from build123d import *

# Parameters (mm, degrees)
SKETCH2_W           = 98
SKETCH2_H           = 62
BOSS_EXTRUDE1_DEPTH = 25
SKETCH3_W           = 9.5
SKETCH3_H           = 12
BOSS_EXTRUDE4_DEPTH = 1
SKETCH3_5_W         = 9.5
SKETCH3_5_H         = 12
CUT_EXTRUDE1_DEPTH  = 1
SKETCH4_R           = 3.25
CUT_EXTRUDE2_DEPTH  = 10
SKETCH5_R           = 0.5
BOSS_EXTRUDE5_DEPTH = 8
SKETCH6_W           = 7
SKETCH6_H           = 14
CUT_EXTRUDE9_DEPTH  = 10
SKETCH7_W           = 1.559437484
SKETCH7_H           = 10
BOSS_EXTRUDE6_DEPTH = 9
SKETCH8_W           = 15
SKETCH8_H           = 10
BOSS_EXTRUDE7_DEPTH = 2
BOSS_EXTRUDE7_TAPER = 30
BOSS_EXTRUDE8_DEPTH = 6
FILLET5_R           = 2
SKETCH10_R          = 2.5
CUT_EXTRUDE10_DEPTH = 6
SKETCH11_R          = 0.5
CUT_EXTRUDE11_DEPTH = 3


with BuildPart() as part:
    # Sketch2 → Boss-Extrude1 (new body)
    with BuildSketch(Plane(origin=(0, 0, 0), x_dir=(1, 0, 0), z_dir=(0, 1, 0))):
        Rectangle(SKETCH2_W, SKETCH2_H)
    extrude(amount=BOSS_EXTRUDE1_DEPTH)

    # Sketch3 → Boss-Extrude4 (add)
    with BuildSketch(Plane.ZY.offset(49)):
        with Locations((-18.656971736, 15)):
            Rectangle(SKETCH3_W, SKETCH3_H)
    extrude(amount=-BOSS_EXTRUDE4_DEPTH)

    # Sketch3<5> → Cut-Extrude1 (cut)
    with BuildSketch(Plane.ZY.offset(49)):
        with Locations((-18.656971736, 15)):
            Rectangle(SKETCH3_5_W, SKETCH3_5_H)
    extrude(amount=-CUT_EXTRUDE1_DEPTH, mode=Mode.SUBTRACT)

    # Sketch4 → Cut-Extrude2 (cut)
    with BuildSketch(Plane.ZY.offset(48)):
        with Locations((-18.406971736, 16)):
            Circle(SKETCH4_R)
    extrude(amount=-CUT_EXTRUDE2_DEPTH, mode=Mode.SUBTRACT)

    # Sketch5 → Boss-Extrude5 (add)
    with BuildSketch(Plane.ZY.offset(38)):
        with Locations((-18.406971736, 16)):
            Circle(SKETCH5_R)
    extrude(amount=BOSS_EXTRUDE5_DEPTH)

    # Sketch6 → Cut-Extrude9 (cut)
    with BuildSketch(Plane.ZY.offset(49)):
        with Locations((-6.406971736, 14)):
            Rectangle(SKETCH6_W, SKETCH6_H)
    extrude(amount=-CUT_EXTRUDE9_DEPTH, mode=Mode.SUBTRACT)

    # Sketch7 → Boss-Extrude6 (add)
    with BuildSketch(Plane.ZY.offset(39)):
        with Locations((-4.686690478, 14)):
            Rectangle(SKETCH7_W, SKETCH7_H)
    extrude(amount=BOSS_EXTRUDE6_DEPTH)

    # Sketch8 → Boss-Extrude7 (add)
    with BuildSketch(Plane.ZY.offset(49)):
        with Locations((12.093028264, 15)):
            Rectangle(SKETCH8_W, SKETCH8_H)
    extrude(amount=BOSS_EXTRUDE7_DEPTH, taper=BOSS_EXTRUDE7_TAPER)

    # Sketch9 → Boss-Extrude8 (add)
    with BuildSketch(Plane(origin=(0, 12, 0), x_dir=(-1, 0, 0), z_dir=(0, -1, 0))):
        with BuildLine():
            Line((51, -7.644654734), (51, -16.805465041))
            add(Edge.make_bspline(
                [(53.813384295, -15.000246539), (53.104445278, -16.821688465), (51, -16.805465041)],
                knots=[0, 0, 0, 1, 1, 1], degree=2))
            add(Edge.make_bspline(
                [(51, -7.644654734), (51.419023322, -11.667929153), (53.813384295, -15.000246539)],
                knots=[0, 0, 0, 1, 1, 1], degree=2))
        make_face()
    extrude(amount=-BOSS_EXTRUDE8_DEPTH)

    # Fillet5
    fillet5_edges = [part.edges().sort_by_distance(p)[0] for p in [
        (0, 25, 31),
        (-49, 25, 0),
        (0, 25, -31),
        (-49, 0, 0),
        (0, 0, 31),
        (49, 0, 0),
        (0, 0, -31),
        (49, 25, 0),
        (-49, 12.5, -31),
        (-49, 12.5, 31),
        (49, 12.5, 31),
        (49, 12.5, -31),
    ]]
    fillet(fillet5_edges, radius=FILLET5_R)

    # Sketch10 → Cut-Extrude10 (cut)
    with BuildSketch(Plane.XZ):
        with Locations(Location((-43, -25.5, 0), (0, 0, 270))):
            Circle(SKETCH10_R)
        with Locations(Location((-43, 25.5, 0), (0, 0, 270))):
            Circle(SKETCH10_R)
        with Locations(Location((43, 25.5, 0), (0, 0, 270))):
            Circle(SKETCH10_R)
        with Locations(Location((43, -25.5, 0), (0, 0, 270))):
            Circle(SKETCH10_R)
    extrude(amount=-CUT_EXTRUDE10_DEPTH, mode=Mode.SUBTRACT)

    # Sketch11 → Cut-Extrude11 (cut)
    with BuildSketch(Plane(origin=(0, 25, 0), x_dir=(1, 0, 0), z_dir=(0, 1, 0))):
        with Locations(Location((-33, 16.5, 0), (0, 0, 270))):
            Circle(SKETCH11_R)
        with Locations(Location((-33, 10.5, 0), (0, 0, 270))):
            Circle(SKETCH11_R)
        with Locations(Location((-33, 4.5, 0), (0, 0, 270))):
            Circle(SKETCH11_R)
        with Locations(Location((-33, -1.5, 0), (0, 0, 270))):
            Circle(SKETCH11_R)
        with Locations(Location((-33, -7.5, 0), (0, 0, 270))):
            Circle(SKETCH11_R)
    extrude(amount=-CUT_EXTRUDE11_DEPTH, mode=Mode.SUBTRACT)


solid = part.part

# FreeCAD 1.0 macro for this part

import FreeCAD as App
import Part
import Sketcher
from FreeCAD import Vector


def edges_at(feature, points):
    """Names of the edges that pass closest to the given points."""
    edges = feature.Shape.Edges
    near = lambda p: min(range(len(edges)), key=lambda i: edges[i].distToShape(Part.Vertex(*p))[0])
    return sorted({f"Edge{near(p) + 1}" for p in points})


def add_polygon(sketch, points):
    """Adds a closed chain of lines whose ends are joined by coincident constraints."""
    first, n = sketch.GeometryCount, len(points)
    for a, b in zip(points, points[1:] + points[:1]):
        sketch.addGeometry(Part.LineSegment(App.Vector(*a, 0), App.Vector(*b, 0)), False)
    for i in range(n):
        sketch.addConstraint(Sketcher.Constraint("Coincident", first + i, 2, first + (i + 1) % n, 1))

doc = App.newDocument("Part")
body = doc.addObject("PartDesign::Body", "Body")

sketch1 = body.newObject("Sketcher::SketchObject", "Sketch")
sketch1.AttachmentSupport = (doc.getObject("XZ_Plane"), [""])
sketch1.MapMode = "FlatFace"
add_polygon(sketch1, [(-49, -31), (-49, 31), (49, 31), (49, -31)])
sketch1.addConstraint(Sketcher.Constraint("Vertical", 0))
sketch1.addConstraint(Sketcher.Constraint("Horizontal", 1))
sketch1.addConstraint(Sketcher.Constraint("Vertical", 2))
sketch1.addConstraint(Sketcher.Constraint("Horizontal", 3))
sketch1.addConstraint(Sketcher.Constraint("Symmetric", 0, 2, 2, 2, -1, 1))
sketch1.addConstraint(Sketcher.Constraint("DistanceX", 1, 1, 1, 2, 98.0))
sketch1.addConstraint(Sketcher.Constraint("DistanceY", 0, 1, 0, 2, 62.0))
pad1 = body.newObject("PartDesign::Pad", "Pad")
pad1.Profile = sketch1
pad1.Length = 25
pad1.Reversed = True

sketch2 = body.newObject("Sketcher::SketchObject", "Sketch001")
sketch2.AttachmentSupport = (doc.getObject("YZ_Plane"), [""])
sketch2.MapMode = "FlatFace"
sketch2.AttachmentOffset = App.Placement(Vector(0, 0, -49), App.Rotation())
add_polygon(sketch2, [(21, -23.406972), (9, -23.406972), (9, -13.906972), (21, -13.906972)])
sketch2.addConstraint(Sketcher.Constraint("Horizontal", 0))
sketch2.addConstraint(Sketcher.Constraint("Vertical", 1))
sketch2.addConstraint(Sketcher.Constraint("Horizontal", 2))
sketch2.addConstraint(Sketcher.Constraint("Vertical", 3))
sketch2.addConstraint(Sketcher.Constraint("DistanceX", 0, 2, 0, 1, 12.0))
sketch2.addConstraint(Sketcher.Constraint("DistanceY", 1, 1, 1, 2, 9.5))
sketch2.addConstraint(Sketcher.Constraint("DistanceX", -1, 1, 0, 2, 9.0))
sketch2.addConstraint(Sketcher.Constraint("DistanceY", 0, 2, -1, 1, 23.406972))
pad2 = body.newObject("PartDesign::Pad", "Pad001")
pad2.Profile = sketch2
pad2.Length = 1

sketch3 = body.newObject("Sketcher::SketchObject", "Sketch002")
sketch3.AttachmentSupport = (doc.getObject("YZ_Plane"), [""])
sketch3.MapMode = "FlatFace"
sketch3.AttachmentOffset = App.Placement(Vector(0, 0, -49), App.Rotation())
add_polygon(sketch3, [(21, -23.406972), (9, -23.406972), (9, -13.906972), (21, -13.906972)])
sketch3.addConstraint(Sketcher.Constraint("Horizontal", 0))
sketch3.addConstraint(Sketcher.Constraint("Vertical", 1))
sketch3.addConstraint(Sketcher.Constraint("Horizontal", 2))
sketch3.addConstraint(Sketcher.Constraint("Vertical", 3))
sketch3.addConstraint(Sketcher.Constraint("DistanceX", 0, 2, 0, 1, 12.0))
sketch3.addConstraint(Sketcher.Constraint("DistanceY", 1, 1, 1, 2, 9.5))
sketch3.addConstraint(Sketcher.Constraint("DistanceX", -1, 1, 0, 2, 9.0))
sketch3.addConstraint(Sketcher.Constraint("DistanceY", 0, 2, -1, 1, 23.406972))
pocket1 = body.newObject("PartDesign::Pocket", "Pocket")
pocket1.Profile = sketch3
pocket1.Length = 1
pocket1.Reversed = True

sketch4 = body.newObject("Sketcher::SketchObject", "Sketch003")
sketch4.AttachmentSupport = (doc.getObject("YZ_Plane"), [""])
sketch4.MapMode = "FlatFace"
sketch4.AttachmentOffset = App.Placement(Vector(0, 0, -48), App.Rotation())
sketch4.addGeometry(Part.Circle(Vector(16, -18.406972, 0), Vector(0, 0, 1), 3.25), False)
sketch4.addConstraint(Sketcher.Constraint("Diameter", 0, 6.5))
sketch4.addConstraint(Sketcher.Constraint("DistanceX", -1, 1, 0, 3, 16.0))
sketch4.addConstraint(Sketcher.Constraint("DistanceY", 0, 3, -1, 1, 18.406972))
pocket2 = body.newObject("PartDesign::Pocket", "Pocket001")
pocket2.Profile = sketch4
pocket2.Length = 10
pocket2.Reversed = True

sketch5 = body.newObject("Sketcher::SketchObject", "Sketch004")
sketch5.AttachmentSupport = (doc.getObject("YZ_Plane"), [""])
sketch5.MapMode = "FlatFace"
sketch5.AttachmentOffset = App.Placement(Vector(0, 0, -38), App.Rotation())
sketch5.addGeometry(Part.Circle(Vector(16, -18.406972, 0), Vector(0, 0, 1), 0.5), False)
sketch5.addConstraint(Sketcher.Constraint("Diameter", 0, 1.0))
sketch5.addConstraint(Sketcher.Constraint("DistanceX", -1, 1, 0, 3, 16.0))
sketch5.addConstraint(Sketcher.Constraint("DistanceY", 0, 3, -1, 1, 18.406972))
pad3 = body.newObject("PartDesign::Pad", "Pad002")
pad3.Profile = sketch5
pad3.Length = 8
pad3.Reversed = True

sketch6 = body.newObject("Sketcher::SketchObject", "Sketch005")
sketch6.AttachmentSupport = (doc.getObject("YZ_Plane"), [""])
sketch6.MapMode = "FlatFace"
sketch6.AttachmentOffset = App.Placement(Vector(0, 0, -49), App.Rotation())
add_polygon(sketch6, [(21, -9.906972), (7, -9.906972), (7, -2.906972), (21, -2.906972)])
sketch6.addConstraint(Sketcher.Constraint("Horizontal", 0))
sketch6.addConstraint(Sketcher.Constraint("Vertical", 1))
sketch6.addConstraint(Sketcher.Constraint("Horizontal", 2))
sketch6.addConstraint(Sketcher.Constraint("Vertical", 3))
sketch6.addConstraint(Sketcher.Constraint("DistanceX", 0, 2, 0, 1, 14.0))
sketch6.addConstraint(Sketcher.Constraint("DistanceY", 1, 1, 1, 2, 7.0))
sketch6.addConstraint(Sketcher.Constraint("DistanceX", -1, 1, 0, 2, 7.0))
sketch6.addConstraint(Sketcher.Constraint("DistanceY", 0, 2, -1, 1, 9.906972))
pocket3 = body.newObject("PartDesign::Pocket", "Pocket002")
pocket3.Profile = sketch6
pocket3.Length = 10
pocket3.Reversed = True

sketch7 = body.newObject("Sketcher::SketchObject", "Sketch006")
sketch7.AttachmentSupport = (doc.getObject("YZ_Plane"), [""])
sketch7.MapMode = "FlatFace"
sketch7.AttachmentOffset = App.Placement(Vector(0, 0, -39), App.Rotation())
add_polygon(sketch7, [(19, -5.466409), (9, -5.466409), (9, -3.906972), (19, -3.906972)])
sketch7.addConstraint(Sketcher.Constraint("Horizontal", 0))
sketch7.addConstraint(Sketcher.Constraint("Vertical", 1))
sketch7.addConstraint(Sketcher.Constraint("Horizontal", 2))
sketch7.addConstraint(Sketcher.Constraint("Vertical", 3))
sketch7.addConstraint(Sketcher.Constraint("DistanceX", 0, 2, 0, 1, 10.0))
sketch7.addConstraint(Sketcher.Constraint("DistanceX", -1, 1, 0, 2, 9.0))
sketch7.addConstraint(Sketcher.Constraint("DistanceY", 1, 1, 1, 2, 1.559437))
sketch7.addConstraint(Sketcher.Constraint("DistanceY", 0, 2, -1, 1, 5.466409))
pad4 = body.newObject("PartDesign::Pad", "Pad003")
pad4.Profile = sketch7
pad4.Length = 9
pad4.Reversed = True

sketch8 = body.newObject("Sketcher::SketchObject", "Sketch007")
sketch8.AttachmentSupport = (doc.getObject("YZ_Plane"), [""])
sketch8.MapMode = "FlatFace"
sketch8.AttachmentOffset = App.Placement(Vector(0, 0, -49), App.Rotation())
add_polygon(sketch8, [(20, 4.593028), (10, 4.593028), (10, 19.593028), (20, 19.593028)])
sketch8.addConstraint(Sketcher.Constraint("Horizontal", 0))
sketch8.addConstraint(Sketcher.Constraint("Vertical", 1))
sketch8.addConstraint(Sketcher.Constraint("Horizontal", 2))
sketch8.addConstraint(Sketcher.Constraint("Vertical", 3))
sketch8.addConstraint(Sketcher.Constraint("DistanceX", 0, 2, 0, 1, 10.0))
sketch8.addConstraint(Sketcher.Constraint("DistanceY", 1, 1, 1, 2, 15.0))
sketch8.addConstraint(Sketcher.Constraint("DistanceX", -1, 1, 0, 2, 10.0))
sketch8.addConstraint(Sketcher.Constraint("DistanceY", -1, 1, 0, 2, 4.593028))
pad5 = body.newObject("PartDesign::Pad", "Pad004")
pad5.Profile = sketch8
pad5.Length = 2
pad5.Reversed = True
pad5.TaperAngle = -30

sketch9 = body.newObject("Sketcher::SketchObject", "Sketch008")
sketch9.AttachmentSupport = (doc.getObject("XZ_Plane"), [""])
sketch9.MapMode = "FlatFace"
sketch9.AttachmentOffset = App.Placement(Vector(0, 0, -12), App.Rotation())
sketch9.addGeometry(Part.LineSegment(Vector(-51, 7.644655, 0), Vector(-51, 16.805465, 0)), False)
sketch9.addGeometry(Part.BSplineCurve([Vector(-53.813384, 15.000247, 0), Vector(-53.104445, 16.821688, 0), Vector(-51, 16.805465, 0)], [3, 3], [0, 1], False, 2, [1, 1, 1], False), False)
sketch9.addGeometry(Part.BSplineCurve([Vector(-51, 7.644655, 0), Vector(-51.419023, 11.667929, 0), Vector(-53.813384, 15.000247, 0)], [3, 3], [0, 1], False, 2, [1, 1, 1], False), False)
sketch9.addConstraint(Sketcher.Constraint("Block", 1))
sketch9.addConstraint(Sketcher.Constraint("Block", 2))
sketch9.addConstraint(Sketcher.Constraint("Coincident", 0, 2, 1, 2))
sketch9.addConstraint(Sketcher.Constraint("Coincident", 2, 1, 0, 1))
pad6 = body.newObject("PartDesign::Pad", "Pad005")
pad6.Profile = sketch9
pad6.Length = 6
pad6.Reversed = True
doc.recompute()

fillet = body.newObject("PartDesign::Fillet", "Fillet")
fillet.Base = (pad6, edges_at(pad6, [
    (0, 25, 31),
    (-49, 25, 0),
    (0, 25, -31),
    (-49, 0, 0),
    (0, 0, 31),
    (49, 0, 0),
    (0, 0, -31),
    (49, 25, 0),
    (-49, 12.5, -31),
    (-49, 12.5, 31),
    (49, 12.5, 31),
    (49, 12.5, -31),
]))
fillet.Radius = 2

sketch10 = body.newObject("Sketcher::SketchObject", "Sketch009")
sketch10.AttachmentSupport = (doc.getObject("XZ_Plane"), [""])
sketch10.MapMode = "FlatFace"
sketch10.addGeometry(Part.Circle(Vector(-43, -25.5, 0), Vector(0, 0, 1), 2.5), False)
sketch10.addGeometry(Part.Circle(Vector(-43, 25.5, 0), Vector(0, 0, 1), 2.5), False)
sketch10.addGeometry(Part.Circle(Vector(43, 25.5, 0), Vector(0, 0, 1), 2.5), False)
sketch10.addGeometry(Part.Circle(Vector(43, -25.5, 0), Vector(0, 0, 1), 2.5), False)
sketch10.addConstraint(Sketcher.Constraint("Equal", 0, 1))
sketch10.addConstraint(Sketcher.Constraint("Equal", 1, 2))
sketch10.addConstraint(Sketcher.Constraint("Equal", 2, 3))
sketch10.addConstraint(Sketcher.Constraint("Symmetric", 0, 3, 2, 3, -1, 1))
sketch10.addConstraint(Sketcher.Constraint("Symmetric", 1, 3, 3, 3, -1, 1))
sketch10.addConstraint(Sketcher.Constraint("Symmetric", 1, 3, 2, 3, -2))
sketch10.addConstraint(Sketcher.Constraint("Diameter", 0, 5.0))
sketch10.addConstraint(Sketcher.Constraint("DistanceX", 0, 3, -1, 1, 43.0))
sketch10.addConstraint(Sketcher.Constraint("DistanceY", 0, 3, 1, 3, 51.0))
pocket4 = body.newObject("PartDesign::Pocket", "Pocket003")
pocket4.Profile = sketch10
pocket4.Length = 6

sketch11 = body.newObject("Sketcher::SketchObject", "Sketch010")
sketch11.AttachmentSupport = (doc.getObject("XZ_Plane"), [""])
sketch11.MapMode = "FlatFace"
sketch11.AttachmentOffset = App.Placement(Vector(0, 0, -25), App.Rotation())
sketch11.addGeometry(Part.Circle(Vector(-33, -16.5, 0), Vector(0, 0, 1), 0.5), False)
sketch11.addGeometry(Part.Circle(Vector(-33, -10.5, 0), Vector(0, 0, 1), 0.5), False)
sketch11.addGeometry(Part.Circle(Vector(-33, -4.5, 0), Vector(0, 0, 1), 0.5), False)
sketch11.addGeometry(Part.Circle(Vector(-33, 1.5, 0), Vector(0, 0, 1), 0.5), False)
sketch11.addGeometry(Part.Circle(Vector(-33, 7.5, 0), Vector(0, 0, 1), 0.5), False)
sketch11.addConstraint(Sketcher.Constraint("Equal", 0, 1))
sketch11.addConstraint(Sketcher.Constraint("Equal", 1, 2))
sketch11.addConstraint(Sketcher.Constraint("Equal", 2, 3))
sketch11.addConstraint(Sketcher.Constraint("Equal", 3, 4))
sketch11.addConstraint(Sketcher.Constraint("Vertical", 0, 3, 1, 3))
sketch11.addConstraint(Sketcher.Constraint("Vertical", 1, 3, 2, 3))
sketch11.addConstraint(Sketcher.Constraint("Vertical", 2, 3, 3, 3))
sketch11.addConstraint(Sketcher.Constraint("Vertical", 3, 3, 4, 3))
sketch11.addConstraint(Sketcher.Constraint("Diameter", 0, 1.0))
sketch11.addConstraint(Sketcher.Constraint("DistanceX", 0, 3, -1, 1, 33.0))
sketch11.addConstraint(Sketcher.Constraint("DistanceY", 0, 3, 1, 3, 6.0))
sketch11.addConstraint(Sketcher.Constraint("DistanceY", 1, 3, 2, 3, 6.0))
sketch11.addConstraint(Sketcher.Constraint("DistanceY", 2, 3, 3, 3, 6.0))
sketch11.addConstraint(Sketcher.Constraint("DistanceY", 3, 3, 4, 3, 6.0))
sketch11.addConstraint(Sketcher.Constraint("DistanceY", 0, 3, -1, 1, 16.5))
pocket5 = body.newObject("PartDesign::Pocket", "Pocket004")
pocket5.Profile = sketch11
pocket5.Length = 3
pocket5.Reversed = True

doc.recompute()
